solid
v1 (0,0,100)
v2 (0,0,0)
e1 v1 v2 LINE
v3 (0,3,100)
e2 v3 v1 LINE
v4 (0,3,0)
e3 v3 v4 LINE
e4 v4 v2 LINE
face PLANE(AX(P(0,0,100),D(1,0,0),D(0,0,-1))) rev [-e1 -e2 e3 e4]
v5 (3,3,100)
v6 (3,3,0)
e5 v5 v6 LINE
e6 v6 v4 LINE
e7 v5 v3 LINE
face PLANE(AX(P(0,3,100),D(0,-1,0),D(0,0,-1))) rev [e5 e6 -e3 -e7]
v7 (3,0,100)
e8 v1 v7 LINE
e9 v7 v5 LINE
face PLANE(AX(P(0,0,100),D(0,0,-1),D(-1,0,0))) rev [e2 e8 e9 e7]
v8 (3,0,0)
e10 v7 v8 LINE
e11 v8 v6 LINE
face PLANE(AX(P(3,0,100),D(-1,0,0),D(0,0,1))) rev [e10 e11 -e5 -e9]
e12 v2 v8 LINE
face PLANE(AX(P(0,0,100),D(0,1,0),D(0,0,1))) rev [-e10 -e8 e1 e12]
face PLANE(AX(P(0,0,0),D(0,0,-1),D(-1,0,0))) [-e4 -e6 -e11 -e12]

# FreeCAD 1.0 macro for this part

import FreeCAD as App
import Part
import Sketcher
Q = App.Units.Quantity

doc = App.newDocument("Part")
body = doc.addObject("PartDesign::Body", "Body")

# Sketch on XY plane
sketch1 = body.newObject("Sketcher::SketchObject", "Sketch")
sketch1.AttachmentSupport = (doc.getObject("XY_Plane"), [""])
sketch1.MapMode = "FlatFace"
sketch1.addGeometry([
    Part.LineSegment(App.Vector(0, 3, 0), App.Vector(0, 0, 0)),
    Part.LineSegment(App.Vector(0, 0, 0), App.Vector(3, 0, 0)),
    Part.LineSegment(App.Vector(3, 0, 0), App.Vector(3, 3, 0)),
    Part.LineSegment(App.Vector(3, 3, 0), App.Vector(0, 3, 0)),
], False)
sketch1.addConstraint([
    Sketcher.Constraint("Coincident", 0, 2, 1, 1),
    Sketcher.Constraint("Coincident", 1, 2, 2, 1),
    Sketcher.Constraint("Coincident", 2, 2, 3, 1),
    Sketcher.Constraint("Coincident", 3, 2, 0, 1),
    Sketcher.Constraint("Vertical", 0),
    Sketcher.Constraint("Horizontal", 1),
    Sketcher.Constraint("Vertical", 2),
    Sketcher.Constraint("Horizontal", 3),
    Sketcher.Constraint("Coincident", 0, 2, -1, 1),
    Sketcher.Constraint("Equal", 3, 0),
    Sketcher.Constraint("DistanceX", 1, 1, 1, 2, Q("3 mm")),
])
pad1 = body.newObject("PartDesign::Pad", "Pad")
pad1.Profile = sketch1
pad1.Length = 100

doc.recompute()
